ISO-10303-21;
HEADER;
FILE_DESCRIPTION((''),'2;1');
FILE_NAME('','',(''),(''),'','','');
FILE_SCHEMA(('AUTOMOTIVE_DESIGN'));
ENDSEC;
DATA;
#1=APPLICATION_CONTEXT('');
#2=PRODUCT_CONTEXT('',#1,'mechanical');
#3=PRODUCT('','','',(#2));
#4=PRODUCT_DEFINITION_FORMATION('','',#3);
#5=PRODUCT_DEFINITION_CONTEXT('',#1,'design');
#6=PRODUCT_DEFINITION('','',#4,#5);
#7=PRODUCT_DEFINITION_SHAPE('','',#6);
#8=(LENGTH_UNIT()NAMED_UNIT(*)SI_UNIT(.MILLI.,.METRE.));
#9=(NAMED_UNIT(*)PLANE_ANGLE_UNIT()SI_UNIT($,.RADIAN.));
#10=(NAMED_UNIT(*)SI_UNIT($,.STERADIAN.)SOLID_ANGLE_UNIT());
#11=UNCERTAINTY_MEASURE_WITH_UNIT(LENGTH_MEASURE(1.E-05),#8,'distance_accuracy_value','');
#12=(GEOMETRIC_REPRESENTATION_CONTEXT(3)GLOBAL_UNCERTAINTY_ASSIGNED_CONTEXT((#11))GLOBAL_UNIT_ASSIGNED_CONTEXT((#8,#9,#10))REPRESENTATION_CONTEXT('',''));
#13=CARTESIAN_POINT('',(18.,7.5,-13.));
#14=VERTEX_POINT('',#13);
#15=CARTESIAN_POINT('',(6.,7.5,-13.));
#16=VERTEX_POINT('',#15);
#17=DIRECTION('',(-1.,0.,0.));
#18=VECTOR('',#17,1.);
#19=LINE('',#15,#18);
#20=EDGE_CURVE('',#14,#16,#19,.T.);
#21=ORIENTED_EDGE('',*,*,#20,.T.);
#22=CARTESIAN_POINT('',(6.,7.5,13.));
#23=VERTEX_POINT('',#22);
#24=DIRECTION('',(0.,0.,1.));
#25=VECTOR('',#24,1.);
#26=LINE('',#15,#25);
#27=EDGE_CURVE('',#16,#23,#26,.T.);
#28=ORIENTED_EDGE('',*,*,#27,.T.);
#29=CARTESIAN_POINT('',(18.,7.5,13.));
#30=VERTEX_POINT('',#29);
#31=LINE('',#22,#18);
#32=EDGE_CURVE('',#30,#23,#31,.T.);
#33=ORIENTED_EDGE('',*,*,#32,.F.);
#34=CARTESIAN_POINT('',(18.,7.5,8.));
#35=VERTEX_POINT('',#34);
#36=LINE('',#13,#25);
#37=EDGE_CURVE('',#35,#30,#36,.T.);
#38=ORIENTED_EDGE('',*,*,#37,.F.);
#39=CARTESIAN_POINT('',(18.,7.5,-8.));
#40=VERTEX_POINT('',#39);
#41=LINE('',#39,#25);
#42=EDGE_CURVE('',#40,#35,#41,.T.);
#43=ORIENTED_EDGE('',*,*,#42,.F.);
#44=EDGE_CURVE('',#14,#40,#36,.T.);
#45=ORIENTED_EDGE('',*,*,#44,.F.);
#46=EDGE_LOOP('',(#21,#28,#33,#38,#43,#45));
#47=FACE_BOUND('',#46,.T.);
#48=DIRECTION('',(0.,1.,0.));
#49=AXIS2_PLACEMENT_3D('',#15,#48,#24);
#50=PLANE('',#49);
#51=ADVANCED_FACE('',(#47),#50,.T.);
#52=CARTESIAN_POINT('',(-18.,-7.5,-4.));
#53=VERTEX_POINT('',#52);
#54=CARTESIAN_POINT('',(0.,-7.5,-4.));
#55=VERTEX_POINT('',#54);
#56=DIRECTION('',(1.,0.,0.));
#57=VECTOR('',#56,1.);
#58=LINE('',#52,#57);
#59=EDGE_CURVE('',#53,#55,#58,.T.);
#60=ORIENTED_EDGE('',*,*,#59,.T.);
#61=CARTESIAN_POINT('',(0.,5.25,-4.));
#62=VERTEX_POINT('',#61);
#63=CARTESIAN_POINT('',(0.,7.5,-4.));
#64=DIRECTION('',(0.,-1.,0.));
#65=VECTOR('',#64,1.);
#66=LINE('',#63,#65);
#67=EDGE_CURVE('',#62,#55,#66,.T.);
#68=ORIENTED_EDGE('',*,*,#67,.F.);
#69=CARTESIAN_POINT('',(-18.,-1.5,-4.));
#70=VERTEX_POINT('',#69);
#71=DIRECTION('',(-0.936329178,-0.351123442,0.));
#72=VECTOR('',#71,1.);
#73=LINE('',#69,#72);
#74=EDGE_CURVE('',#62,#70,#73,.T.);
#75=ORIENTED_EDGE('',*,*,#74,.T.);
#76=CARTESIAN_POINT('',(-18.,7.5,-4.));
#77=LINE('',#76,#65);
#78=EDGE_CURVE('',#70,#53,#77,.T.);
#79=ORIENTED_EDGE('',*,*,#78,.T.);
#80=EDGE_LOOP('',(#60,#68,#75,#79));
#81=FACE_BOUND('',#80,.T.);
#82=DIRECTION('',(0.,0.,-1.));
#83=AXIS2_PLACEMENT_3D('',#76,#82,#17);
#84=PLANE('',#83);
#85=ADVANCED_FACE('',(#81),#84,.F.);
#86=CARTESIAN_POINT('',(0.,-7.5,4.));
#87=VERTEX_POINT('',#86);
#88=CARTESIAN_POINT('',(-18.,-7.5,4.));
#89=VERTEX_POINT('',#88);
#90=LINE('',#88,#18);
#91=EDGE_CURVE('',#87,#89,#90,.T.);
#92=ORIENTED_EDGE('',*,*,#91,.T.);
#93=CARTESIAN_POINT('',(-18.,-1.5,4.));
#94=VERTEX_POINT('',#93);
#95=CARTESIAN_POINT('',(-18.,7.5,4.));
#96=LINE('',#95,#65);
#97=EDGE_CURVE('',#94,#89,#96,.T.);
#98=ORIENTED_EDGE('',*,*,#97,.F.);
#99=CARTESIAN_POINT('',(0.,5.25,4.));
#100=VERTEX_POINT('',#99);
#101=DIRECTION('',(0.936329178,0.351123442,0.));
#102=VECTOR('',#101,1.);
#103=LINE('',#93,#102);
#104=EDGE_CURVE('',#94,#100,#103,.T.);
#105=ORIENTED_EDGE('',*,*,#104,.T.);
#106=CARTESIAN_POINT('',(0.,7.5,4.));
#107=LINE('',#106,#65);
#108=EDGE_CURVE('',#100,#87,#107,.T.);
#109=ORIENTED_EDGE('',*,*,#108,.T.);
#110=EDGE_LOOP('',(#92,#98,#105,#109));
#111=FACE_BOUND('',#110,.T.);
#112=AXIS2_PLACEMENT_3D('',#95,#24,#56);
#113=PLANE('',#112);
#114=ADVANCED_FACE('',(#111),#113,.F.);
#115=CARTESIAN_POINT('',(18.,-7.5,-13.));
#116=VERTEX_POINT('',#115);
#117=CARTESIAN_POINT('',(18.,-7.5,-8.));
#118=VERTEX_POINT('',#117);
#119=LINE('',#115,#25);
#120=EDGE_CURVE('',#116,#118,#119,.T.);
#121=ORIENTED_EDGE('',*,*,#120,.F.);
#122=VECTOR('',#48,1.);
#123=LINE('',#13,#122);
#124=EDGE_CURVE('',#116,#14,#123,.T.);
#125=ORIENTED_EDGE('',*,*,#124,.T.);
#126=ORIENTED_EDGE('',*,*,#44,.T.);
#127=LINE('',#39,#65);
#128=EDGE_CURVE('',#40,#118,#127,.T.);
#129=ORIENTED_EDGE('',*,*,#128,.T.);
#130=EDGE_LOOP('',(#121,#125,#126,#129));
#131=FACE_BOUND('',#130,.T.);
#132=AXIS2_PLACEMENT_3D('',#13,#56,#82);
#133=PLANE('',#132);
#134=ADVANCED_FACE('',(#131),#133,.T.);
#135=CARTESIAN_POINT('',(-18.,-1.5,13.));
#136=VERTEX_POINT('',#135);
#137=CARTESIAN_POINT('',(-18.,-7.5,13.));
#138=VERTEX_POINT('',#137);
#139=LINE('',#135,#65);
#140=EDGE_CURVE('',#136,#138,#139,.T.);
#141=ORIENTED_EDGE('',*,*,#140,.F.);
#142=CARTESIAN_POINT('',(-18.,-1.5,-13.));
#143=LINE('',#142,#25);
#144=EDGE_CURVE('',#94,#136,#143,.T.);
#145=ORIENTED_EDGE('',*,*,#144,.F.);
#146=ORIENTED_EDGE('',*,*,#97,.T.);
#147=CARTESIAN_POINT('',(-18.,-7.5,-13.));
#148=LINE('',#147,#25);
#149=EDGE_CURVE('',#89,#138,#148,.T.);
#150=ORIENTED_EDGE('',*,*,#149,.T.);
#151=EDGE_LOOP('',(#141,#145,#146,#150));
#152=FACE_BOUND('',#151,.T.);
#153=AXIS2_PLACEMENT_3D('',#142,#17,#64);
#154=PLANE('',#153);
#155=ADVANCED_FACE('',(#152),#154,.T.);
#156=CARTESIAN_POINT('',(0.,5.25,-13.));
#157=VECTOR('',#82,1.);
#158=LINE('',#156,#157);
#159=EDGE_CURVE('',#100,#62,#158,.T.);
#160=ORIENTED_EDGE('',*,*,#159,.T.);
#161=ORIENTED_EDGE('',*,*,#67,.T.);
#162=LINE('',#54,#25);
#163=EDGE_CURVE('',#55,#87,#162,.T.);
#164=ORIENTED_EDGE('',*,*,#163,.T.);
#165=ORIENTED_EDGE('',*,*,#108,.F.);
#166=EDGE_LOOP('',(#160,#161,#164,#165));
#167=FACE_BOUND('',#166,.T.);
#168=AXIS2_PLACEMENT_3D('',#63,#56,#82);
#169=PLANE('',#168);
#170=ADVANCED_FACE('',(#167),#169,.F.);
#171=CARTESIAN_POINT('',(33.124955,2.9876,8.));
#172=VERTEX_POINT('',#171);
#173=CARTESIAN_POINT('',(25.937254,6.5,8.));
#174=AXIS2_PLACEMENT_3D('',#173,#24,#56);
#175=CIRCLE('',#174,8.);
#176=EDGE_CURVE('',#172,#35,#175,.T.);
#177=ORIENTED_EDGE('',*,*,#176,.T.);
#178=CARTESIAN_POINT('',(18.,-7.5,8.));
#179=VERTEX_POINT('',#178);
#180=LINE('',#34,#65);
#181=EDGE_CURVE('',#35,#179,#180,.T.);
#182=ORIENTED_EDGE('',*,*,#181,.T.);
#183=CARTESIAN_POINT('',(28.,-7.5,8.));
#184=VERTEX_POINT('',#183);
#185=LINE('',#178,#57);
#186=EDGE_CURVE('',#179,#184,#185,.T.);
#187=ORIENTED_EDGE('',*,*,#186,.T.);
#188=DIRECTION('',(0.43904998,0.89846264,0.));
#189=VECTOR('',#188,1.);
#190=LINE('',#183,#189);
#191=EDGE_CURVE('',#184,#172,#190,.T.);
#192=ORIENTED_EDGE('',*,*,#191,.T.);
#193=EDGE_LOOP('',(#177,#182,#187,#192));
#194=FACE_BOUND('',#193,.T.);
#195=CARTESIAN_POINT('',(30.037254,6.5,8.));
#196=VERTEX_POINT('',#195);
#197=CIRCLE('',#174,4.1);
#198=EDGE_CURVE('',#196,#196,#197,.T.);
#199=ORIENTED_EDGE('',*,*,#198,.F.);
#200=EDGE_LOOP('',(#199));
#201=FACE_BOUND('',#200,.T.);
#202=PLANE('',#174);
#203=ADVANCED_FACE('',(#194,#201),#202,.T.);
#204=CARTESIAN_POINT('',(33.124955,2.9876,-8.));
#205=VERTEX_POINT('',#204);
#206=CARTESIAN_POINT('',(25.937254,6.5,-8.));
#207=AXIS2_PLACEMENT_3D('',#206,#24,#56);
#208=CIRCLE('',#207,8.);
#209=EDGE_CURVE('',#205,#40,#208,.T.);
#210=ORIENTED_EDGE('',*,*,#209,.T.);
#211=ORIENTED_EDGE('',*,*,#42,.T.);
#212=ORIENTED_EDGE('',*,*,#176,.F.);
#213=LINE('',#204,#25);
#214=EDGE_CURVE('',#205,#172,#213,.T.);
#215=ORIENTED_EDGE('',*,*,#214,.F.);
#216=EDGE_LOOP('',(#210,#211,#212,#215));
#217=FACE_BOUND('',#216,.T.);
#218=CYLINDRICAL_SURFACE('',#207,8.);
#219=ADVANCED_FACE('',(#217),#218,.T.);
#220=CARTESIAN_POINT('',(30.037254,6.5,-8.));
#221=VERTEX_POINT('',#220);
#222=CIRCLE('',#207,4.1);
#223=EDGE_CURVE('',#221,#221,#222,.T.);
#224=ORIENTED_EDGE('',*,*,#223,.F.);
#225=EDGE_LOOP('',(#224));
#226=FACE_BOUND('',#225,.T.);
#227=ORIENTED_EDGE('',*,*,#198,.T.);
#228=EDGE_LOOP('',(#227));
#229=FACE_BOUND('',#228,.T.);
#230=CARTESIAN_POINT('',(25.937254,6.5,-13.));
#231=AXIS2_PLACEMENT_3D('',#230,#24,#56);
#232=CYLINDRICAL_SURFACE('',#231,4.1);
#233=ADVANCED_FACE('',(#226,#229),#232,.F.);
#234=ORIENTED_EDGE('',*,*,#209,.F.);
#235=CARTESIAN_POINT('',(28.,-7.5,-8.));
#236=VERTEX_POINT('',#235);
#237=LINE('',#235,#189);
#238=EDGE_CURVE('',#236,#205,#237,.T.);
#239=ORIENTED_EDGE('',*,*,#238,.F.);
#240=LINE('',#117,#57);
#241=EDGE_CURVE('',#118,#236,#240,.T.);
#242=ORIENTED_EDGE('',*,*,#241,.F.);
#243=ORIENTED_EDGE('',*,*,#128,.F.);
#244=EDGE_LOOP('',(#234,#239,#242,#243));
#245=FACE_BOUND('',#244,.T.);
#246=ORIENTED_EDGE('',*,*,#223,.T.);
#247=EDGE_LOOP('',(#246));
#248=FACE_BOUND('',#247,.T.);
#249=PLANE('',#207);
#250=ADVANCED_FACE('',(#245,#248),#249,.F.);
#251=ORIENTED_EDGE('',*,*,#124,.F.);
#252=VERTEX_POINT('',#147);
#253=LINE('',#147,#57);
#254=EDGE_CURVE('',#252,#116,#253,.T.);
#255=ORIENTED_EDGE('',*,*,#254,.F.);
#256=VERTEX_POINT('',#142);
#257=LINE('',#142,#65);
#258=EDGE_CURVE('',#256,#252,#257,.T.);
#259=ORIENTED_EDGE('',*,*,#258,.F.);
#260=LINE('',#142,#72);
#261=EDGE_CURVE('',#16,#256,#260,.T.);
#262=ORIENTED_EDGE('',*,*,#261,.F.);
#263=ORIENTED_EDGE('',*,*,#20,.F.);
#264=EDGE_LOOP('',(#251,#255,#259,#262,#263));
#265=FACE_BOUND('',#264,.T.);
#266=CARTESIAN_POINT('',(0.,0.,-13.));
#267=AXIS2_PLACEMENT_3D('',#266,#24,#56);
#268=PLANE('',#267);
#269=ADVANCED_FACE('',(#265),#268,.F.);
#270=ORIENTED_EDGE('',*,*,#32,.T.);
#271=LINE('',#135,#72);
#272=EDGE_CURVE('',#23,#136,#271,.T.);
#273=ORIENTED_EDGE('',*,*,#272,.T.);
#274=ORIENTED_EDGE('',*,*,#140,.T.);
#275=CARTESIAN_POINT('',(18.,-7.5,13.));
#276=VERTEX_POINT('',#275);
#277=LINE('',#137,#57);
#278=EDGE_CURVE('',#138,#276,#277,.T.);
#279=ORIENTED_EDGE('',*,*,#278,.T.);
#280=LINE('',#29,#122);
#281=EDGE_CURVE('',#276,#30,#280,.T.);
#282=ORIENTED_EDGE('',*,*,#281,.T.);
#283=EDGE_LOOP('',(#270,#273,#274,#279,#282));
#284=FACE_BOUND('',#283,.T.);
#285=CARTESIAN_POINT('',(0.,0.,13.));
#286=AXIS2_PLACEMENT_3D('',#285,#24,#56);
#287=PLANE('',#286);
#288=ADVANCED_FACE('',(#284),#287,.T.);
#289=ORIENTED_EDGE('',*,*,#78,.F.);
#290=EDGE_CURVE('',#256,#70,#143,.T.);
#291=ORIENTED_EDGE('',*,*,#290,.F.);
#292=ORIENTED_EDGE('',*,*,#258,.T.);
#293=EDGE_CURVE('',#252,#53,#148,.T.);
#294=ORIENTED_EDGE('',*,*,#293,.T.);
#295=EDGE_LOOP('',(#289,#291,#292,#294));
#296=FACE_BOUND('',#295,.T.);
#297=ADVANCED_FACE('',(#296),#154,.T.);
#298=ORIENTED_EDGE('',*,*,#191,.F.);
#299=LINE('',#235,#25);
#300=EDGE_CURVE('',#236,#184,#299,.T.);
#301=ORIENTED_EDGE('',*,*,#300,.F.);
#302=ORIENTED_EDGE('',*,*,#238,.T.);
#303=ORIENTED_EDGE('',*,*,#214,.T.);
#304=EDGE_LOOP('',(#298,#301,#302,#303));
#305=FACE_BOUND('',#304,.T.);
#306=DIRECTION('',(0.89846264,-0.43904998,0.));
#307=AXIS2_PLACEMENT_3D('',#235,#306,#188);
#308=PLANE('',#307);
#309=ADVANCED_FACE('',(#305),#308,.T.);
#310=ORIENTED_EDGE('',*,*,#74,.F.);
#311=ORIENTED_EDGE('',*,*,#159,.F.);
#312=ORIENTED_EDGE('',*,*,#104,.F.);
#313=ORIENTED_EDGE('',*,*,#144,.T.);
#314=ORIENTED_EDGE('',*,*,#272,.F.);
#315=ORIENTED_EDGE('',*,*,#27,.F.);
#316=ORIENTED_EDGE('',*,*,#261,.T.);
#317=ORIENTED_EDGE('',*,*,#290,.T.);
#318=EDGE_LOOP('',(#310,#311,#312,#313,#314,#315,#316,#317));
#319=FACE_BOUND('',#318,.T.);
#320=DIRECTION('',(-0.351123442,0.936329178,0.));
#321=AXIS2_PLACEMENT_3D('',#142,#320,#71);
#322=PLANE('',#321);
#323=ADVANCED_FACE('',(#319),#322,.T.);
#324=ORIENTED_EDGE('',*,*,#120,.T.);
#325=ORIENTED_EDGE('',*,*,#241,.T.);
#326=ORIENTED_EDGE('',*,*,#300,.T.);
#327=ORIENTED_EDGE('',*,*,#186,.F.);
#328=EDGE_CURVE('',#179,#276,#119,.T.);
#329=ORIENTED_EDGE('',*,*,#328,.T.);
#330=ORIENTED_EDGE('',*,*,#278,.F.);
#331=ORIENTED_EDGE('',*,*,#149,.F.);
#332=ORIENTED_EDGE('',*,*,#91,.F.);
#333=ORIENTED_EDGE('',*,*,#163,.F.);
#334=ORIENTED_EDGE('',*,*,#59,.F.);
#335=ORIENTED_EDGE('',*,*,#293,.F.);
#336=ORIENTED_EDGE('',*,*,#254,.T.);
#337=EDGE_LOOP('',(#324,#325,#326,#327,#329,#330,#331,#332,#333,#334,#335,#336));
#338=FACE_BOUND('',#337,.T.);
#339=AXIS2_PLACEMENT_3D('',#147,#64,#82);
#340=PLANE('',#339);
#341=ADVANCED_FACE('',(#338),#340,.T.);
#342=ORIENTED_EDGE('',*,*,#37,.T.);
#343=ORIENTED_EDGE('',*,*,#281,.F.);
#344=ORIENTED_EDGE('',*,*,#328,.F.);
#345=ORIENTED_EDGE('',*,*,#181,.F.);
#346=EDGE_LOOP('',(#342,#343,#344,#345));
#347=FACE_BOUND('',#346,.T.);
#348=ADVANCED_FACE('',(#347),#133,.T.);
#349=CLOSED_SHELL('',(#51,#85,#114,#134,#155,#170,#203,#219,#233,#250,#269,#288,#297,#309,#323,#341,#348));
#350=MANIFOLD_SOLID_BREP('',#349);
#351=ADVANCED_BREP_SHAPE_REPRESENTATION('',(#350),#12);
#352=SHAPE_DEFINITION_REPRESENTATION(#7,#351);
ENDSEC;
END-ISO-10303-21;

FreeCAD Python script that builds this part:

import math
import FreeCAD as App
import Part
import Sketcher
from FreeCAD import Vector
Q = App.Units.Quantity

doc = App.newDocument("Part")
body = doc.addObject("PartDesign::Body", "Body")

sketch1 = body.newObject("Sketcher::SketchObject", "Sketch")
sketch1.AttachmentSupport = (doc.getObject("XY_Plane"), [""])
sketch1.MapMode = "FlatFace"
sketch1.addGeometry(Part.LineSegment(Vector(6, 7.5, 0), Vector(-18, -1.5, 0)), False)
sketch1.addGeometry(Part.LineSegment(Vector(-18, -1.5, 0), Vector(-18, -7.5, 0)), False)
sketch1.addGeometry(Part.LineSegment(Vector(-18, -7.5, 0), Vector(18, -7.5, 0)), False)
sketch1.addGeometry(Part.LineSegment(Vector(18, -7.5, 0), Vector(18, 7.5, 0)), False)
sketch1.addGeometry(Part.LineSegment(Vector(18, 7.5, 0), Vector(6, 7.5, 0)), False)
sketch1.addConstraint(Sketcher.Constraint("Coincident", 0, 2, 1, 1))
sketch1.addConstraint(Sketcher.Constraint("Coincident", 1, 2, 2, 1))
sketch1.addConstraint(Sketcher.Constraint("Coincident", 2, 2, 3, 1))
sketch1.addConstraint(Sketcher.Constraint("Coincident", 3, 2, 4, 1))
sketch1.addConstraint(Sketcher.Constraint("Coincident", 4, 2, 0, 1))
sketch1.addConstraint(Sketcher.Constraint("Vertical", 1))
sketch1.addConstraint(Sketcher.Constraint("Horizontal", 2))
sketch1.addConstraint(Sketcher.Constraint("Vertical", 3))
sketch1.addConstraint(Sketcher.Constraint("Horizontal", 4))
sketch1.addConstraint(Sketcher.Constraint("Symmetric", 1, 2, 3, 2, -1, 1))
sketch1.addConstraint(Sketcher.Constraint("DistanceX", 2, 1, 2, 2, Q("36 mm")))
sketch1.addConstraint(Sketcher.Constraint("DistanceX", 4, 2, 4, 1, Q("12 mm")))
sketch1.addConstraint(Sketcher.Constraint("DistanceY", 1, 2, 1, 1, Q("6 mm")))
sketch1.addConstraint(Sketcher.Constraint("DistanceY", 3, 1, 3, 2, Q("15 mm")))
pad1 = body.newObject("PartDesign::Pad", "Pad")
pad1.Profile = sketch1
pad1.Type = "TwoLengths"
pad1.Length = 13
pad1.Length2 = 13

sketch2 = body.newObject("Sketcher::SketchObject", "Sketch001")
sketch2.AttachmentSupport = (doc.getObject("XZ_Plane"), [""])
sketch2.MapMode = "FlatFace"
sketch2.AttachmentOffset = App.Placement(Vector(0, 0, 7.5), App.Rotation())
sketch2.addGeometry(Part.LineSegment(Vector(-18, 4, 0), Vector(-18, -4, 0)), False)
sketch2.addGeometry(Part.LineSegment(Vector(-18, -4, 0), Vector(0, -4, 0)), False)
sketch2.addGeometry(Part.LineSegment(Vector(0, -4, 0), Vector(0, 4, 0)), False)
sketch2.addGeometry(Part.LineSegment(Vector(0, 4, 0), Vector(-18, 4, 0)), False)
sketch2.addConstraint(Sketcher.Constraint("Coincident", 0, 2, 1, 1))
sketch2.addConstraint(Sketcher.Constraint("Coincident", 1, 2, 2, 1))
sketch2.addConstraint(Sketcher.Constraint("Coincident", 2, 2, 3, 1))
sketch2.addConstraint(Sketcher.Constraint("Coincident", 3, 2, 0, 1))
sketch2.addConstraint(Sketcher.Constraint("Vertical", 0))
sketch2.addConstraint(Sketcher.Constraint("Horizontal", 1))
sketch2.addConstraint(Sketcher.Constraint("Vertical", 2))
sketch2.addConstraint(Sketcher.Constraint("Horizontal", 3))
sketch2.addConstraint(Sketcher.Constraint("Symmetric", 1, 2, 2, 2, -1, 1))
sketch2.addConstraint(Sketcher.Constraint("DistanceX", 1, 1, 1, 2, Q("18 mm")))
sketch2.addConstraint(Sketcher.Constraint("DistanceY", 0, 2, 0, 1, Q("8 mm")))
pocket1 = body.newObject("PartDesign::Pocket", "Pocket")
pocket1.Profile = sketch2
pocket1.Type = "ThroughAll"

sketch3 = body.newObject("Sketcher::SketchObject", "Sketch002")
sketch3.AttachmentSupport = (doc.getObject("XY_Plane"), [""])
sketch3.MapMode = "FlatFace"
sketch3.addGeometry(Part.LineSegment(Vector(18, 7.5, 0), Vector(18, -7.5, 0)), False)
sketch3.addGeometry(Part.LineSegment(Vector(18, -7.5, 0), Vector(28, -7.5, 0)), False)
sketch3.addGeometry(Part.LineSegment(Vector(28, -7.5, 0), Vector(33.124955, 2.9876, 0)), False)
sketch3.addGeometry(Part.ArcOfCircle(Part.Circle(Vector(25.937254, 6.5, 0), Vector(0, 0, 1), 8), math.radians(-26.043282), math.radians(172.819244)), False)
sketch3.addConstraint(Sketcher.Constraint("Coincident", 0, 2, 1, 1))
sketch3.addConstraint(Sketcher.Constraint("Coincident", 1, 2, 2, 1))
sketch3.addConstraint(Sketcher.Constraint("Tangent", 2, 2, 3, 1))
sketch3.addConstraint(Sketcher.Constraint("Coincident", 3, 2, 0, 1))
sketch3.addConstraint(Sketcher.Constraint("Vertical", 0))
sketch3.addConstraint(Sketcher.Constraint("Horizontal", 1))
sketch3.addConstraint(Sketcher.Constraint("Radius", 3, Q("8 mm")))
sketch3.addConstraint(Sketcher.Constraint("DistanceX", 1, 1, 1, 2, Q("10 mm")))
sketch3.addConstraint(Sketcher.Constraint("DistanceY", 0, 2, 0, 1, Q("15 mm")))
sketch3.addConstraint(Sketcher.Constraint("DistanceX", -1, 1, 0, 2, Q("18 mm")))
sketch3.addConstraint(Sketcher.Constraint("DistanceY", 0, 2, 3, 3, Q("14 mm")))
sketch3.addConstraint(Sketcher.Constraint("DistanceY", -1, 1, 3, 3, Q("6.5 mm")))
pad2 = body.newObject("PartDesign::Pad", "Pad001")
pad2.Profile = sketch3
pad2.Type = "TwoLengths"
pad2.Length = 8
pad2.Length2 = 8

sketch4 = body.newObject("Sketcher::SketchObject", "Sketch003")
sketch4.AttachmentSupport = (doc.getObject("XY_Plane"), [""])
sketch4.MapMode = "FlatFace"
sketch4.AttachmentOffset = App.Placement(Vector(0, 0, 8), App.Rotation())
sketch4.addGeometry(Part.Circle(Vector(25.937254, 6.5, 0), Vector(0, 0, 1), 4.1), False)
sketch4.addConstraint(Sketcher.Constraint("Diameter", 0, Q("8.2 mm")))
sketch4.addConstraint(Sketcher.Constraint("DistanceY", -1, 1, 0, 3, Q("6.5 mm")))
sketch4.addConstraint(Sketcher.Constraint("DistanceX", -1, 1, 0, 3, Q("25.937254 mm")))
pocket2 = body.newObject("PartDesign::Pocket", "Pocket001")
pocket2.Profile = sketch4
pocket2.Type = "ThroughAll"

doc.recompute()
